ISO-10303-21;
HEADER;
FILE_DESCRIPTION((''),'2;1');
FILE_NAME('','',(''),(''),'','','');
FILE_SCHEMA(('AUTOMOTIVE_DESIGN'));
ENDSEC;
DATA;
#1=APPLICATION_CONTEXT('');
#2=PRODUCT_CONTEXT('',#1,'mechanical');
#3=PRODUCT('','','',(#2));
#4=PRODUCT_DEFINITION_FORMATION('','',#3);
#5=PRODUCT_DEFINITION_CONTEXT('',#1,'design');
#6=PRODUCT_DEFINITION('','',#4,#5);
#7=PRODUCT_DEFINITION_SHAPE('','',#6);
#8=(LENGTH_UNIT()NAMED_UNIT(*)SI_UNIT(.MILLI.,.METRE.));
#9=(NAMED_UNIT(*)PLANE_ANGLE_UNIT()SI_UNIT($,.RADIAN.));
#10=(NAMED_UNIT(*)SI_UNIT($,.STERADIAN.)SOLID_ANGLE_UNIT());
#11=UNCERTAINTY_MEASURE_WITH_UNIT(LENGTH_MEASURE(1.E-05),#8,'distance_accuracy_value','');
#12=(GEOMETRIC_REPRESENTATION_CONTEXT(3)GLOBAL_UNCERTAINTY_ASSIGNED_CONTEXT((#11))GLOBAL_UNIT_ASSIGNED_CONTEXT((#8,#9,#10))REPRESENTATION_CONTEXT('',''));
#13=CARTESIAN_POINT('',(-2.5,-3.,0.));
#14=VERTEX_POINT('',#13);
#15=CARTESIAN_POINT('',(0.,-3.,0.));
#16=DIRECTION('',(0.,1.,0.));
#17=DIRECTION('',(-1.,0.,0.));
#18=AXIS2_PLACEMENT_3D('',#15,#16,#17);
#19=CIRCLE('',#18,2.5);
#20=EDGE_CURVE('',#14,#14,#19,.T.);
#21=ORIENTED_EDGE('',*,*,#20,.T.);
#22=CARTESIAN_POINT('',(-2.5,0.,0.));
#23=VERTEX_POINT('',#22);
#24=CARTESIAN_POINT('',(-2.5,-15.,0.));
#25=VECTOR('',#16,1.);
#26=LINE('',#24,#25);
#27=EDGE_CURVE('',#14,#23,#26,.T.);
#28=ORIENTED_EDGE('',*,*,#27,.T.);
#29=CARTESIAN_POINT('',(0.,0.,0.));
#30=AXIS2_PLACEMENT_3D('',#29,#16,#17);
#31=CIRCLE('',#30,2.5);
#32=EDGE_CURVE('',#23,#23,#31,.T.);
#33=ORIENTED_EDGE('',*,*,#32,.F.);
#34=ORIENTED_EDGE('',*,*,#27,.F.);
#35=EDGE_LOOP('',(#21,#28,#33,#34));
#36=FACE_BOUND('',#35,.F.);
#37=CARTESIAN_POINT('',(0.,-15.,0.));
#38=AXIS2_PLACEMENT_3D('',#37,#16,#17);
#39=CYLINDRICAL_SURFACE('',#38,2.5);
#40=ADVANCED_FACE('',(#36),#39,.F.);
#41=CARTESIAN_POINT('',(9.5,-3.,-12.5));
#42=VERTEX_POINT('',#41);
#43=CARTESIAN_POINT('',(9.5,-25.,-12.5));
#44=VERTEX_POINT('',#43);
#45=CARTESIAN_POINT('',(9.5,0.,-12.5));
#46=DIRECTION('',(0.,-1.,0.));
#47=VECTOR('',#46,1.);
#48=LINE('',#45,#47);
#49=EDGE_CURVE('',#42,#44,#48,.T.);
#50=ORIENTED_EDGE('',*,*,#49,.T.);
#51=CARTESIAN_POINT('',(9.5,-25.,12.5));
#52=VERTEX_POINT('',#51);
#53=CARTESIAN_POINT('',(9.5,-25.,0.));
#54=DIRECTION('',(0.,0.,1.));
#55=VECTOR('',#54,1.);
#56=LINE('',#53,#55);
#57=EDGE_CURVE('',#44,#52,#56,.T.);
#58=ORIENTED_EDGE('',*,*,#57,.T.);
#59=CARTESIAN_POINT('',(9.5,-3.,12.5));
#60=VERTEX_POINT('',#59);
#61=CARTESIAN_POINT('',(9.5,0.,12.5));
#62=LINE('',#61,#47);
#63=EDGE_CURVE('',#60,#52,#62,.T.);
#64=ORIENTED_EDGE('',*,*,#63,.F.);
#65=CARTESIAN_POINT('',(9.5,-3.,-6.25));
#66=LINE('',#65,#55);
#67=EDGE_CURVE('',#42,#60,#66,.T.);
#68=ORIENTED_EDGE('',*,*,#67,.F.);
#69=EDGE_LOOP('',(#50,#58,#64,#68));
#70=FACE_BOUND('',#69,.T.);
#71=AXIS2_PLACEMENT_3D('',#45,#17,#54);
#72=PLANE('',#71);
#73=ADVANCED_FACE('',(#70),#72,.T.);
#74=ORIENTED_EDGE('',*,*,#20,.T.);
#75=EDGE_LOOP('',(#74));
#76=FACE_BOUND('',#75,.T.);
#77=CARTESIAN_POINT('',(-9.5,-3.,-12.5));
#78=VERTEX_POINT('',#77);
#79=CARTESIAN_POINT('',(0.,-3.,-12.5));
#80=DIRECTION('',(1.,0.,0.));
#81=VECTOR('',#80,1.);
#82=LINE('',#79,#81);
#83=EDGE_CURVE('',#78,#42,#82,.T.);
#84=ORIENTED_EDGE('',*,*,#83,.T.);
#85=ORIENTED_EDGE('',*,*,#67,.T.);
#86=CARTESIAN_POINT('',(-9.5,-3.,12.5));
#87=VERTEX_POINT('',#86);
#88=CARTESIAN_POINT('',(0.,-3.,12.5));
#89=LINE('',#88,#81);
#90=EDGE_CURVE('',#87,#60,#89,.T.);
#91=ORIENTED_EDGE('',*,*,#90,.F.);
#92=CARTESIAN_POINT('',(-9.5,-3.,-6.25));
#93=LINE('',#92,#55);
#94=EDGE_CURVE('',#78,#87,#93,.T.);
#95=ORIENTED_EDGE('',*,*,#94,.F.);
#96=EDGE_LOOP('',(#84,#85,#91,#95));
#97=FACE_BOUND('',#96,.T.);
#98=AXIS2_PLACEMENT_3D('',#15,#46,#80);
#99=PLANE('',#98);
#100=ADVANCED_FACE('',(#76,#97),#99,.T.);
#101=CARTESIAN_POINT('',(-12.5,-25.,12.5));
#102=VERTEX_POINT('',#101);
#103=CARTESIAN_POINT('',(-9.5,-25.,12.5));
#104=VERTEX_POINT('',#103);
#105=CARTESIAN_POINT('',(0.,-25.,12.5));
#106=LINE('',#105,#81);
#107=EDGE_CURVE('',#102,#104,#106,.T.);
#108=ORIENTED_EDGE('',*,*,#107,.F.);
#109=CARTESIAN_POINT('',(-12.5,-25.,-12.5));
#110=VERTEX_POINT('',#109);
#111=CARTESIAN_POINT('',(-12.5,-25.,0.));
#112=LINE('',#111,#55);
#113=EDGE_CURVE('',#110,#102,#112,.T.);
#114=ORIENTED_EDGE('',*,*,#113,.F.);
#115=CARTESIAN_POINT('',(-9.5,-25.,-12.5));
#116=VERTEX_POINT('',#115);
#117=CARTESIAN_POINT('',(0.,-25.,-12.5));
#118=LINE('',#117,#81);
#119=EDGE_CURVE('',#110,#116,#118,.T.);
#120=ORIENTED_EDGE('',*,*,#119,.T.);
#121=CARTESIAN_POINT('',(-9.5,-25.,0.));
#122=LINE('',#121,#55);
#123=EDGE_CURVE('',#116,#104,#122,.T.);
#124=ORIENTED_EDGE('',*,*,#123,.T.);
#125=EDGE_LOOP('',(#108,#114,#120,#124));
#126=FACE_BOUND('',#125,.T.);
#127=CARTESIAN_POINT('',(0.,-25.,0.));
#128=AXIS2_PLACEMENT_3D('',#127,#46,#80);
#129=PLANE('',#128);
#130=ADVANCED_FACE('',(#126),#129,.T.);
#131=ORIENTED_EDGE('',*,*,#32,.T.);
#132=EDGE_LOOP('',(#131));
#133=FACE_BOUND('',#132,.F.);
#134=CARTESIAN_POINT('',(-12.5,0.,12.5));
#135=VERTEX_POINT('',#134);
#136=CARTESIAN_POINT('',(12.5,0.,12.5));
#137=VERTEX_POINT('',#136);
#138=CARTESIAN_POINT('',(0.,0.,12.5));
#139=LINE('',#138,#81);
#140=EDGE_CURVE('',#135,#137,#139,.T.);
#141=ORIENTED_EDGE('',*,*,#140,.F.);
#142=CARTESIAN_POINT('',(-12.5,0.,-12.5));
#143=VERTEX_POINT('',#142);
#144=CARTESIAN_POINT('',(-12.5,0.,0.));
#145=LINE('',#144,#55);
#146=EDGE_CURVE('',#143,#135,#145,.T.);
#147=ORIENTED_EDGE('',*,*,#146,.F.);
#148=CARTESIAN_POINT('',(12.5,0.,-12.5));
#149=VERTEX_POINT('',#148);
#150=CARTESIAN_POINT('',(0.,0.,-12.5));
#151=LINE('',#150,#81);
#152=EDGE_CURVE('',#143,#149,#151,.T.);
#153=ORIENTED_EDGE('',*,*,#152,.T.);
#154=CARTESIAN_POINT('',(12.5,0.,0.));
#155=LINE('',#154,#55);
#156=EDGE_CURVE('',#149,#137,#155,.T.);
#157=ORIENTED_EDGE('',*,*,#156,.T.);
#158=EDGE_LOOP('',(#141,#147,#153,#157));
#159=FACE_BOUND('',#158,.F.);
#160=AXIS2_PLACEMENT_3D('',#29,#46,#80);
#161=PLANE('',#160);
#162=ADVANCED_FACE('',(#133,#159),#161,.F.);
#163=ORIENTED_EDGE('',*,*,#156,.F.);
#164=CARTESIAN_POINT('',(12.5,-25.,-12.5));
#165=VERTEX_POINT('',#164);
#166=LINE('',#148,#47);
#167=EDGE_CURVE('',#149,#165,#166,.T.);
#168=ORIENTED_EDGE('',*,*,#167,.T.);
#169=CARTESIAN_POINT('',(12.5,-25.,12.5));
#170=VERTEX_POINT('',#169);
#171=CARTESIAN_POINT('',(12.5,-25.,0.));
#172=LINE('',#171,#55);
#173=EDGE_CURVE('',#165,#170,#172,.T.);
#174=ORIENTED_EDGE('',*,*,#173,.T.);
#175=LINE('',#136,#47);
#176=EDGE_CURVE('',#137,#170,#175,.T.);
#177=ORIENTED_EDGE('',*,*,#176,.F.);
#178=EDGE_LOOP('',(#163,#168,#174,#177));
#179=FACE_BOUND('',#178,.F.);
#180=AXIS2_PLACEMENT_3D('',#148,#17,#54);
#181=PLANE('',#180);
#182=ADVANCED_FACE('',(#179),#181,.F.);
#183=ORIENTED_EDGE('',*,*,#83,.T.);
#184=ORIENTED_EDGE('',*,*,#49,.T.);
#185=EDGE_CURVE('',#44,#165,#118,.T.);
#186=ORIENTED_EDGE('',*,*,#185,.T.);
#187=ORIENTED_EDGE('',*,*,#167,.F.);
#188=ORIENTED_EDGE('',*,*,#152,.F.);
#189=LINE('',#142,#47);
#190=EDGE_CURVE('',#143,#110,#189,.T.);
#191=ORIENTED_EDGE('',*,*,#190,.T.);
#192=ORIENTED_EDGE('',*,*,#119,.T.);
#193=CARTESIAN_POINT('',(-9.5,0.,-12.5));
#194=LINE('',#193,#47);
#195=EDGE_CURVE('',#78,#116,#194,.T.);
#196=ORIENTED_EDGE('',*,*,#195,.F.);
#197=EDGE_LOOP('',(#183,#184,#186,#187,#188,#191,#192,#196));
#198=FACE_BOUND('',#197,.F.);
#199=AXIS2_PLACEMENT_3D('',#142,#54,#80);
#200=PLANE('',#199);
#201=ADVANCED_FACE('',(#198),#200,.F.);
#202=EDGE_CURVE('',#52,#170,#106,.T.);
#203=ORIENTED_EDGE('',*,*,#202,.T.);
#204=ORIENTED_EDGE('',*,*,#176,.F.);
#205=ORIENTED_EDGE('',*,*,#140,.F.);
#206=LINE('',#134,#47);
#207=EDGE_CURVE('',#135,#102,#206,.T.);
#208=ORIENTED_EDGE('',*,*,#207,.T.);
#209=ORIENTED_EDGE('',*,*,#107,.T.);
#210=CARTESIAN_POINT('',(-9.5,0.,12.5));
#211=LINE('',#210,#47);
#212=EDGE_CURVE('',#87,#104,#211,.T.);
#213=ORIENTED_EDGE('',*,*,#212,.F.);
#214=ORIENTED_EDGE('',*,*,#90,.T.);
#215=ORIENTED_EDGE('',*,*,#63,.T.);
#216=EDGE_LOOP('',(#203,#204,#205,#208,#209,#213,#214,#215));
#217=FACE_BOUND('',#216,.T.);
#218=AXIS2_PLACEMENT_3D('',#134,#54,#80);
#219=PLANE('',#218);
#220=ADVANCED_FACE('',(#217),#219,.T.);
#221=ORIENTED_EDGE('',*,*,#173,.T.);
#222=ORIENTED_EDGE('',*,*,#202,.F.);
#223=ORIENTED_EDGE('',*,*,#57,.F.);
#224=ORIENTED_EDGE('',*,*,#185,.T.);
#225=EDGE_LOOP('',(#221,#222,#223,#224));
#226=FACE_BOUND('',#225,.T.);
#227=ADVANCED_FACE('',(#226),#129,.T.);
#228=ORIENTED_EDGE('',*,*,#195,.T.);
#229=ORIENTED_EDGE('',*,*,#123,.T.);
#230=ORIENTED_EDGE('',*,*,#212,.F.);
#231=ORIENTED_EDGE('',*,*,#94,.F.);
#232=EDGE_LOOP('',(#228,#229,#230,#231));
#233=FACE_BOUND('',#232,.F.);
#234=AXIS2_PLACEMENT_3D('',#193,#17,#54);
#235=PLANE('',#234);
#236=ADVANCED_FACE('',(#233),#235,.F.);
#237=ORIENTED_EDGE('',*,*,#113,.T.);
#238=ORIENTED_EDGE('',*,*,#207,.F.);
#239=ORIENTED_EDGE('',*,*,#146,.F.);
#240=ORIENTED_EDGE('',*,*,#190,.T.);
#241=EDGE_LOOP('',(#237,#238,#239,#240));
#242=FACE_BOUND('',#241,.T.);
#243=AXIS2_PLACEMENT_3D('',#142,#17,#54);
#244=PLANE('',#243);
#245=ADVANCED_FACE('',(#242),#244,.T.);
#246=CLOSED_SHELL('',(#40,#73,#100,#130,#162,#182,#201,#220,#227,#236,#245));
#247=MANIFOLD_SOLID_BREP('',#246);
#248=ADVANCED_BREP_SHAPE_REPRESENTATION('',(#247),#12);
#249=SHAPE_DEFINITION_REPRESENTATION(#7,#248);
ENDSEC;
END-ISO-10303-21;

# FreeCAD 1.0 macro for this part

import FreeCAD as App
import Part
import Sketcher

V = App.Vector


def faces_at(feature, points):
    """Names of the faces that lie closest to the given points."""
    faces = feature.Shape.Faces
    near = lambda p: min(range(len(faces)), key=lambda i: faces[i].distToShape(Part.Vertex(*p))[0])
    return sorted({f"Face{near(p) + 1}" for p in points})

doc = App.newDocument("Part")
body = doc.addObject("PartDesign::Body", "Body")

sketch1 = body.newObject("Sketcher::SketchObject", "Sketch")
sketch1.AttachmentSupport = (doc.getObject("XZ_Plane"), [""])
sketch1.MapMode = "FlatFace"
sketch1.addGeometry(Part.LineSegment(V(-12, 12, 0), V(-12, -12, 0)), False)
sketch1.addGeometry(Part.LineSegment(V(-12, -12, 0), V(12, -12, 0)), False)
sketch1.addGeometry(Part.LineSegment(V(12, -12, 0), V(12, 12, 0)), False)
sketch1.addGeometry(Part.LineSegment(V(12, 12, 0), V(-12, 12, 0)), False)
sketch1.addConstraint(Sketcher.Constraint("Coincident", 0, 2, 1, 1))
sketch1.addConstraint(Sketcher.Constraint("Coincident", 1, 2, 2, 1))
sketch1.addConstraint(Sketcher.Constraint("Coincident", 2, 2, 3, 1))
sketch1.addConstraint(Sketcher.Constraint("Coincident", 3, 2, 0, 1))
sketch1.addConstraint(Sketcher.Constraint("Vertical", 0))
sketch1.addConstraint(Sketcher.Constraint("Horizontal", 1))
sketch1.addConstraint(Sketcher.Constraint("Vertical", 2))
sketch1.addConstraint(Sketcher.Constraint("Horizontal", 3))
sketch1.addConstraint(Sketcher.Constraint("Symmetric", 0, 2, 2, 2, -1, 1))
sketch1.addConstraint(Sketcher.Constraint("Equal", 3, 0))
sketch1.addConstraint(Sketcher.Constraint("DistanceX", 1, 1, 1, 2, 25.0))
pad1 = body.newObject("PartDesign::Pad", "Pad")
pad1.Profile = sketch1
pad1.Length = 25
doc.recompute()

thickness = body.newObject("PartDesign::Thickness", "Thickness")
thickness.Base = (pad1, faces_at(pad1, [(0, -25, 0), (0, -12.5, -12.5), (0, -12.5, 12.5)]))
thickness.Value = 3
thickness.Reversed = True
thickness.Join = "Arc"

sketch2 = body.newObject("Sketcher::SketchObject", "Sketch001")
sketch2.AttachmentSupport = (doc.getObject("XZ_Plane"), [""])
sketch2.MapMode = "FlatFace"
sketch2.AttachmentOffset = App.Placement(V(0, 0, 3), App.Rotation())
sketch2.addGeometry(Part.Circle(V(0, 0, 0), V(0, 0, 1), 2.5), False)
sketch2.addConstraint(Sketcher.Constraint("Coincident", 0, 3, -1, 1))
sketch2.addConstraint(Sketcher.Constraint("Diameter", 0, 5.0))
doc.recompute()
hole = body.newObject("PartDesign::Hole", "Hole")
hole.Profile = sketch2
hole.ThreadType = "None"
hole.Diameter = 5
hole.DepthType = "Dimension"
hole.Depth = 12
hole.DrillPoint = "Angled"
hole.DrillPointAngle = 118

doc.recompute()
